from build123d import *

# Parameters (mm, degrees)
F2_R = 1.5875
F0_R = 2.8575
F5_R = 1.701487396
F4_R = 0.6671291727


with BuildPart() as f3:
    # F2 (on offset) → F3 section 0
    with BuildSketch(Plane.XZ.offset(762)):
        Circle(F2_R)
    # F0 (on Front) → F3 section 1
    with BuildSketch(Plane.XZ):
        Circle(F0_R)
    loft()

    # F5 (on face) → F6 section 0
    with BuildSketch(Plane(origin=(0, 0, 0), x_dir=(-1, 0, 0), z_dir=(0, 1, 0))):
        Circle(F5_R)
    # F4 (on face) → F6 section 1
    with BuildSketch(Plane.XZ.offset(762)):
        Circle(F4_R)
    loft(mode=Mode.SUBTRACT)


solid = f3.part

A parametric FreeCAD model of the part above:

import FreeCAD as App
import Part
import Sketcher
Q = App.Units.Quantity

doc = App.newDocument("Part")
body = doc.addObject("PartDesign::Body", "Body")

# Sketch on XZ plane
sketch1 = doc.addObject("Sketcher::SketchObject", "Sketch")
body.addObject(sketch1)
sketch1.AttachmentSupport = (doc.XZ_Plane, [""])
sketch1.MapMode = "FlatFace"
sketch1.AttachmentOffset = App.Placement(App.Vector(0, 0, 30 * 25.4), App.Rotation())
sketch1.addGeometry(Part.Circle(App.Vector(0, 0, 0), App.Vector(0, 0, 1), 1.6), False)
sketch1.addConstraint([
    Sketcher.Constraint("Coincident", 0, 3, -1, 1),
    Sketcher.Constraint("Diameter", 0, Q("0.125 in")),
])

# Sketch on XZ plane
sketch2 = doc.addObject("Sketcher::SketchObject", "Sketch001")
body.addObject(sketch2)
sketch2.AttachmentSupport = (doc.XZ_Plane, [""])
sketch2.MapMode = "FlatFace"
sketch2.addGeometry(Part.Circle(App.Vector(0, 0, 0), App.Vector(0, 0, 1), 2.9), False)
sketch2.addConstraint([
    Sketcher.Constraint("Coincident", 0, 3, -1, 1),
    Sketcher.Constraint("Diameter", 0, Q("0.225 in")),
])

additiveloft = doc.addObject("PartDesign::AdditiveLoft", "AdditiveLoft")
body.addObject(additiveloft)
additiveloft.Profile = sketch1
additiveloft.Sections = [sketch2]

# Sketch on XZ plane
sketch3 = doc.addObject("Sketcher::SketchObject", "Sketch002")
body.addObject(sketch3)
sketch3.AttachmentSupport = (doc.XZ_Plane, [""])
sketch3.MapMode = "FlatFace"
sketch3.addGeometry(Part.Circle(App.Vector(0, 0, 0), App.Vector(0, 0, 1), 1.7), False)
sketch3.addConstraint([
    Sketcher.Constraint("Coincident", 0, 3, -1, 1),
    Sketcher.Constraint("Diameter", 0, 3.402975),
])

# Sketch on XZ plane
sketch4 = doc.addObject("Sketcher::SketchObject", "Sketch003")
body.addObject(sketch4)
sketch4.AttachmentSupport = (doc.XZ_Plane, [""])
sketch4.MapMode = "FlatFace"
sketch4.AttachmentOffset = App.Placement(App.Vector(0, 0, 30 * 25.4), App.Rotation())
sketch4.addGeometry(Part.Circle(App.Vector(0, 0, 0), App.Vector(0, 0, 1), 0.7), False)
sketch4.addConstraint([
    Sketcher.Constraint("Coincident", 0, 3, -1, 1),
    Sketcher.Constraint("Diameter", 0, 1.334258),
])

subtractiveloft = doc.addObject("PartDesign::SubtractiveLoft", "SubtractiveLoft")
body.addObject(subtractiveloft)
subtractiveloft.Profile = sketch3
subtractiveloft.Sections = [sketch4]

doc.recompute()
